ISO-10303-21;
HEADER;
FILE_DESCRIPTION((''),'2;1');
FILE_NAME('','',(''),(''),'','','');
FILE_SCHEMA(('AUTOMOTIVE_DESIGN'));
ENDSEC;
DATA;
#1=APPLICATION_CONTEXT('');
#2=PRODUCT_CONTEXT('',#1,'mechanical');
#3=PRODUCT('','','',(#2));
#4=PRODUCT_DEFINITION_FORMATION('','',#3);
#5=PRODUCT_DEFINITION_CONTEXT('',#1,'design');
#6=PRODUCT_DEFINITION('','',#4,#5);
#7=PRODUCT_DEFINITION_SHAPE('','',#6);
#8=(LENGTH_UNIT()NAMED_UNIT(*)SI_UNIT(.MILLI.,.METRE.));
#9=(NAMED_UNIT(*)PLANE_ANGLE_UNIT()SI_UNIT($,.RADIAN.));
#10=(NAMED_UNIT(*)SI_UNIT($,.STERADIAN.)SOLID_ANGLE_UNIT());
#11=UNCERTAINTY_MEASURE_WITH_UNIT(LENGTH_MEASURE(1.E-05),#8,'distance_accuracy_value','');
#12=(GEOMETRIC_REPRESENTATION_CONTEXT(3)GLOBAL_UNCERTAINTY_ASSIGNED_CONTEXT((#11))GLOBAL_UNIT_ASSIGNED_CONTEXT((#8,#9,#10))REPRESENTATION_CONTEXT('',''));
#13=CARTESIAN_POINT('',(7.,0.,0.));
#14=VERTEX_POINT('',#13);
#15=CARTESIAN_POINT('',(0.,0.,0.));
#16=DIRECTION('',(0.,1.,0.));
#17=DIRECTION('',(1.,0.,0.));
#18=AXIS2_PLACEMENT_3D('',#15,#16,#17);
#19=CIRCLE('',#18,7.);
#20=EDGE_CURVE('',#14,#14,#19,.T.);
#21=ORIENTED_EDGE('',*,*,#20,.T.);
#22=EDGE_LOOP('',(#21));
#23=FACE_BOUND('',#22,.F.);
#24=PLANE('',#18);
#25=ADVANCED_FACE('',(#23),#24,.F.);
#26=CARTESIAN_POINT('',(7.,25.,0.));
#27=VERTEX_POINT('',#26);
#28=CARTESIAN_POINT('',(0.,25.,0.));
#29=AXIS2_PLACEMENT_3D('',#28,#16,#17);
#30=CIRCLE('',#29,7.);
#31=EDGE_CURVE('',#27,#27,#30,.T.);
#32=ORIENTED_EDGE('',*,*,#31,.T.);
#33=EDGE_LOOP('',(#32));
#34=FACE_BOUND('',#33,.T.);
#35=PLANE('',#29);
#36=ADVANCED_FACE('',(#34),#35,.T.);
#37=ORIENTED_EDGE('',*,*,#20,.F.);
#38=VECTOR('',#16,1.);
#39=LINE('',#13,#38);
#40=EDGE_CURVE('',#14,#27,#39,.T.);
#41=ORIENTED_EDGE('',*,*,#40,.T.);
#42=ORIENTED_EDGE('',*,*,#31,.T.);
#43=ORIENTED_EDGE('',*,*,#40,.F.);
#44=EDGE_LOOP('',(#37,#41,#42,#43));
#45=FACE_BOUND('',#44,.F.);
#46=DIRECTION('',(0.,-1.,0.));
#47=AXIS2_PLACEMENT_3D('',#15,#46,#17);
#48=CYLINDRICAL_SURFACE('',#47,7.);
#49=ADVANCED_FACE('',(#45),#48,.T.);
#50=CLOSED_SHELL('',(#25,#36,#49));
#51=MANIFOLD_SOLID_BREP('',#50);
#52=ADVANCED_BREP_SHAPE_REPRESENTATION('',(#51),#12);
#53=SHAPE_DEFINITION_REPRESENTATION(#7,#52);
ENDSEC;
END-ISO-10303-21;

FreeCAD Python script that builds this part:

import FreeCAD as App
import Part
import Sketcher
Q = App.Units.Quantity

doc = App.newDocument("Part")
body = doc.addObject("PartDesign::Body", "Body")

# Sketch on XZ plane
sketch1 = body.newObject("Sketcher::SketchObject", "Sketch")
sketch1.AttachmentSupport = (doc.getObject("XZ_Plane"), [""])
sketch1.MapMode = "FlatFace"
sketch1.addGeometry(Part.Circle(App.Vector(0, 0, 0), App.Vector(0, 0, 1), 7), False)
sketch1.addConstraint([
    Sketcher.Constraint("Coincident", 0, 3, -1, 1),
    Sketcher.Constraint("Diameter", 0, Q("14 mm")),
])
pad1 = body.newObject("PartDesign::Pad", "Pad")
pad1.Profile = sketch1
pad1.Length = 25
pad1.Reversed = True

doc.recompute()
